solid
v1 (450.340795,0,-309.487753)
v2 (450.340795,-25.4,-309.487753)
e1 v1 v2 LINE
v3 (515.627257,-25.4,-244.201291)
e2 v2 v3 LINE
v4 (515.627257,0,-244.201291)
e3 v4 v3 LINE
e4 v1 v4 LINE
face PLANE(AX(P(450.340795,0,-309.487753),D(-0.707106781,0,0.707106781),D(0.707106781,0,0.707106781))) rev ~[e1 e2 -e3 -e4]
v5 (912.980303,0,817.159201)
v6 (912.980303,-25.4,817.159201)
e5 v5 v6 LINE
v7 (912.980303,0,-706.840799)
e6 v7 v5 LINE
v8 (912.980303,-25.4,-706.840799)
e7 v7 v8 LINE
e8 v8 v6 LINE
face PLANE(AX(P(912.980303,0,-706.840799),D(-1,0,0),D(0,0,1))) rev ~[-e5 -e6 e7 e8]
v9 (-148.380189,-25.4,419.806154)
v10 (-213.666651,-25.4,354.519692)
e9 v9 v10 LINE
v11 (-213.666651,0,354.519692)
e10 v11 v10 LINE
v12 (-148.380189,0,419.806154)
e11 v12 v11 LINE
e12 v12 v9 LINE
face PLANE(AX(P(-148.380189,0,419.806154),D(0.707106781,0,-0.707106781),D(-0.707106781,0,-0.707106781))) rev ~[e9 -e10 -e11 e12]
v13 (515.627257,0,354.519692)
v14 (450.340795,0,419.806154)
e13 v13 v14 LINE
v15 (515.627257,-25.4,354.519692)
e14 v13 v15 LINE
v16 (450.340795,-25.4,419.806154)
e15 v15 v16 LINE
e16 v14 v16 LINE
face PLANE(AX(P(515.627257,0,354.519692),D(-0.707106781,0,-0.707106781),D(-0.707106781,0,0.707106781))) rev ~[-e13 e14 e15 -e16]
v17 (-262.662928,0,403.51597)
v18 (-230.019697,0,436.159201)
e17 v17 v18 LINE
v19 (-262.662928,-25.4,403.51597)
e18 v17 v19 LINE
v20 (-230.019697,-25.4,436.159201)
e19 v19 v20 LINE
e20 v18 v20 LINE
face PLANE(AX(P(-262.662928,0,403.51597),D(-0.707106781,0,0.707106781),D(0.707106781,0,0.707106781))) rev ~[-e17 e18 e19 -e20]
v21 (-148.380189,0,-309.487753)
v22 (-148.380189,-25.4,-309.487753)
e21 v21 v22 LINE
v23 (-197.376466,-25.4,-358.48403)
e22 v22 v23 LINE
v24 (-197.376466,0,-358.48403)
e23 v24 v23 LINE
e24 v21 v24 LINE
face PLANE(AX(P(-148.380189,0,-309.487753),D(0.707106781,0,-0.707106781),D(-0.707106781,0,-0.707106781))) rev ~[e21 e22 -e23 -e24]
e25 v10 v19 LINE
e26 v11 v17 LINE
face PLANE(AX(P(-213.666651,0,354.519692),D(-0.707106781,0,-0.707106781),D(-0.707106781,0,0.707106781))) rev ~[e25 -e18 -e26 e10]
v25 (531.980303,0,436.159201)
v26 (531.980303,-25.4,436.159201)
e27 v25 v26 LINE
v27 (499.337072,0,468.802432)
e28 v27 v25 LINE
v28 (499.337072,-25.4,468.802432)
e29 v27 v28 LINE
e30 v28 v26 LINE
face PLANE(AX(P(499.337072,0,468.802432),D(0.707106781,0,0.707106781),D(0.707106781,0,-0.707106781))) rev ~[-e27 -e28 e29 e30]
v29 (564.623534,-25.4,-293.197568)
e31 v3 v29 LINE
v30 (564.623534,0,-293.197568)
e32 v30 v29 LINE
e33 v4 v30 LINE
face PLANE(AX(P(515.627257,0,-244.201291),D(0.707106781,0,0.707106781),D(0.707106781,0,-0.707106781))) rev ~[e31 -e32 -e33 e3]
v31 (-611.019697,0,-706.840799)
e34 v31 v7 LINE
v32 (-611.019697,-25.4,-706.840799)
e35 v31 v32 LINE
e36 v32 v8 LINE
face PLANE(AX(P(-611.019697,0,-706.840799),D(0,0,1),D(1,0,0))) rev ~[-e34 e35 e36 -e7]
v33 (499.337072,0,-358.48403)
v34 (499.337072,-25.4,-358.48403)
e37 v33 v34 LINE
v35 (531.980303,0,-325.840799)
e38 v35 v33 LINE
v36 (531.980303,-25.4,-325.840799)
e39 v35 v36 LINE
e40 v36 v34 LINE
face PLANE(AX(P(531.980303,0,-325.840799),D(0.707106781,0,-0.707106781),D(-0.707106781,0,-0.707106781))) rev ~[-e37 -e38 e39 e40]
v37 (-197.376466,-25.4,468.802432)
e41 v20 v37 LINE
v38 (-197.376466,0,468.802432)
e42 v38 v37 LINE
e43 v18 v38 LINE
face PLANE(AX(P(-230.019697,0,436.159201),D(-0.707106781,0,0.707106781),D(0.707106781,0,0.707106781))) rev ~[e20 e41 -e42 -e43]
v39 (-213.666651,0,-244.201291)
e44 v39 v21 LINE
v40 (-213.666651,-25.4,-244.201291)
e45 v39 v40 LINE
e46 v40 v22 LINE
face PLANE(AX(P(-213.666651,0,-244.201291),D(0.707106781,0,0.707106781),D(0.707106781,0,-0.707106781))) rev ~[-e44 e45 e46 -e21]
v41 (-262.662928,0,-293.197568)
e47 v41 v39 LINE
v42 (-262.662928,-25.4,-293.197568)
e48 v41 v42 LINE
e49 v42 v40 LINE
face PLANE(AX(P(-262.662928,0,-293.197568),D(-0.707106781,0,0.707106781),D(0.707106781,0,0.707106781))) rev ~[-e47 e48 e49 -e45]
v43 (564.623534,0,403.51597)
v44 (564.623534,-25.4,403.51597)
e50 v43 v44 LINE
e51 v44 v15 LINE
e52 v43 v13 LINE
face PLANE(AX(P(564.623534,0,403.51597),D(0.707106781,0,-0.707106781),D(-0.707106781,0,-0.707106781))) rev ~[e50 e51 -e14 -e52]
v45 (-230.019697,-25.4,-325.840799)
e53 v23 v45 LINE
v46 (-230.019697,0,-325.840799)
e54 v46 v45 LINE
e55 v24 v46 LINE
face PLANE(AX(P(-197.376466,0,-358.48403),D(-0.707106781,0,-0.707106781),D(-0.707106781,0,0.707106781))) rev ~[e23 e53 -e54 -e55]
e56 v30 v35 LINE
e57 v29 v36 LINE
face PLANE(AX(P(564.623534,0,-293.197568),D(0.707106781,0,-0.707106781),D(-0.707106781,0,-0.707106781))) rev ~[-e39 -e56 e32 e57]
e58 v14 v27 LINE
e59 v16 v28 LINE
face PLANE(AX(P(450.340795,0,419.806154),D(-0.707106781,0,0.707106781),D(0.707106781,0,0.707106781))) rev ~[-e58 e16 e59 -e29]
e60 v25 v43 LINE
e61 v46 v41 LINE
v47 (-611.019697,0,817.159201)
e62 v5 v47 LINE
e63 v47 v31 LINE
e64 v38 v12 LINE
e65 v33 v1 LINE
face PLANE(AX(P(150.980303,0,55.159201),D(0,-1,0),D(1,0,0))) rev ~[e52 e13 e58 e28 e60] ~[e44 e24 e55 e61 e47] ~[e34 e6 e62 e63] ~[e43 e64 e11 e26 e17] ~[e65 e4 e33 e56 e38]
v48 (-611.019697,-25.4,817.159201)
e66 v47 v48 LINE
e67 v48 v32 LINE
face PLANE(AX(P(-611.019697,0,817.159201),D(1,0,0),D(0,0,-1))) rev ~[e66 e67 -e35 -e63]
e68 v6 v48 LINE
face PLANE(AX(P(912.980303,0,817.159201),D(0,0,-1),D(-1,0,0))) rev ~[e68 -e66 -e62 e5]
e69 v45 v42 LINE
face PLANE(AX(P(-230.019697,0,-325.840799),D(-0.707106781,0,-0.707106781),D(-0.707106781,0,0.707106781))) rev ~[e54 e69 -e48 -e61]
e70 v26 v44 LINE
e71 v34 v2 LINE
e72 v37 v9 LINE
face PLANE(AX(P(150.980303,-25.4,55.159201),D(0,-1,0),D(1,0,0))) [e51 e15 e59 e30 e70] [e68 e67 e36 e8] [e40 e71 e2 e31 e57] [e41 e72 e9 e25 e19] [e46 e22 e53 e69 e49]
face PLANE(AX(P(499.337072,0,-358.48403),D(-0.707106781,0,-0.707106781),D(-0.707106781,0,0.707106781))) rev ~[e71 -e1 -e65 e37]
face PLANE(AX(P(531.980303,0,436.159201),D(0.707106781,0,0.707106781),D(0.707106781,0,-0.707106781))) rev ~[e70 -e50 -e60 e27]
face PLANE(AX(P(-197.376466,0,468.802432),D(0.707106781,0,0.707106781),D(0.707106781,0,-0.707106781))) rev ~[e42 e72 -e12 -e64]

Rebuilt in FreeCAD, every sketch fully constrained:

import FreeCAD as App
import Part
import Sketcher
from FreeCAD import Vector
Q = App.Units.Quantity


def add_polygon(sketch, points):
    """Adds a closed chain of lines whose ends are joined by coincident constraints."""
    first, n = sketch.GeometryCount, len(points)
    for a, b in zip(points, points[1:] + points[:1]):
        sketch.addGeometry(Part.LineSegment(App.Vector(*a, 0), App.Vector(*b, 0)), False)
    for i in range(n):
        sketch.addConstraint(Sketcher.Constraint("Coincident", first + i, 2, first + (i + 1) % n, 1))

doc = App.newDocument("Part")
params = doc.addObject("Spreadsheet::Sheet", "Params")
for row, (alias, value) in enumerate([
    ("sketch1_width", "60 in"),
    ("sketch1_length", "2.728 in"),
    ("sketch1_length2", "3.635 in"),
    ("pad1_length", "1 in"),
], start=1):
    params.set(f"A{row}", alias)
    params.set(f"B{row}", "=" + value)
    params.setAlias(f"B{row}", alias)

body = doc.addObject("PartDesign::Body", "Body")

sketch1 = body.newObject("Sketcher::SketchObject", "Sketch")
sketch1.AttachmentSupport = (doc.getObject("XZ_Plane"), [""])
sketch1.MapMode = "FlatFace"
add_polygon(sketch1, [(-611, 817), (-611, -707), (913, -707), (913, 817)])
add_polygon(sketch1, [(-230, -326), (-263, -293), (-214, -244), (-148, -309), (-197, -358)])
add_polygon(sketch1, [(499, -358), (450, -309), (516, -244), (565, -293), (532, -326)])
add_polygon(sketch1, [(-263, 404), (-230, 436), (-197, 469), (-148, 420), (-214, 355)])
add_polygon(sketch1, [(532, 436), (565, 404), (516, 355), (450, 420), (499, 469)])
sketch1.addConstraint([
    Sketcher.Constraint("Vertical", 0),
    Sketcher.Constraint("Horizontal", 1),
    Sketcher.Constraint("Vertical", 2),
    Sketcher.Constraint("Horizontal", 3),
    Sketcher.Constraint("Perpendicular", 4, 5),
    Sketcher.Constraint("Perpendicular", 5, 6),
    Sketcher.Constraint("Perpendicular", 6, 7),
    Sketcher.Constraint("Perpendicular", 7, 8),
    Sketcher.Constraint("Parallel", 8, 9),
    Sketcher.Constraint("Perpendicular", 9, 10),
    Sketcher.Constraint("Perpendicular", 10, 11),
    Sketcher.Constraint("Perpendicular", 11, 12),
    Sketcher.Constraint("Parallel", 12, 13),
    Sketcher.Constraint("Parallel", 13, 14),
    Sketcher.Constraint("Parallel", 14, 15),
    Sketcher.Constraint("Perpendicular", 15, 16),
    Sketcher.Constraint("Perpendicular", 16, 17),
    Sketcher.Constraint("Perpendicular", 17, 18),
    Sketcher.Constraint("Parallel", 18, 19),
    Sketcher.Constraint("Perpendicular", 19, 20),
    Sketcher.Constraint("Perpendicular", 20, 21),
    Sketcher.Constraint("Perpendicular", 21, 22),
    Sketcher.Constraint("Perpendicular", 22, 23),
    Sketcher.Constraint("Horizontal", 6, 2, 9, 2),
    Sketcher.Constraint("Horizontal", 5, 2, 10, 2),
    Sketcher.Constraint("Horizontal", 4, 2, 11, 2),
    Sketcher.Constraint("Horizontal", 8, 2, 12, 2),
    Sketcher.Constraint("Horizontal", 18, 2, 19, 2),
    Sketcher.Constraint("Horizontal", 17, 2, 20, 2),
    Sketcher.Constraint("Horizontal", 16, 2, 21, 2),
    Sketcher.Constraint("Horizontal", 14, 2, 23, 2),
    Sketcher.Constraint("Vertical", 8, 2, 14, 2),
    Sketcher.Constraint("Vertical", 7, 2, 15, 2),
    Sketcher.Constraint("Vertical", 6, 2, 16, 2),
    Sketcher.Constraint("Vertical", 5, 2, 17, 2),
    Sketcher.Constraint("Vertical", 11, 2, 19, 2),
    Sketcher.Constraint("Vertical", 10, 2, 20, 2),
    Sketcher.Constraint("Equal", 3, 0),
    Sketcher.Constraint("Equal", 4, 8),
    Sketcher.Constraint("DistanceX", 1, 1, 1, 2, Q("60 in")),
    Sketcher.Constraint("DistanceX", 0, 2, 8, 2, Q("15 in")),
    Sketcher.Constraint("DistanceY", 0, 2, 8, 2, Q("15 in")),
    Sketcher.Constraint("DistanceX", 7, 2, 11, 2, Q("30 in")),
    Sketcher.Constraint("DistanceY", 14, 2, 3, 2, Q("15 in")),
    Sketcher.Constraint("Distance", 5, Q("2.728 in")),
    Sketcher.Constraint("Distance", 6, Q("3.635 in")),
    Sketcher.Constraint("DistanceY", 0, 2, -1, 1, Q("706.840799 mm")),
    Sketcher.Constraint("DistanceX", 5, 2, -1, 1, Q("213.666651 mm")),
])
sketch1.setExpression("Constraints[63]", "Params.sketch1_width")
sketch1.setExpression("Constraints[68]", "Params.sketch1_length")
sketch1.setExpression("Constraints[69]", "Params.sketch1_length2")
pad1 = body.newObject("PartDesign::Pad", "Pad")
pad1.Profile = sketch1
pad1.setExpression("Length", "Params.pad1_length")

doc.recompute()
